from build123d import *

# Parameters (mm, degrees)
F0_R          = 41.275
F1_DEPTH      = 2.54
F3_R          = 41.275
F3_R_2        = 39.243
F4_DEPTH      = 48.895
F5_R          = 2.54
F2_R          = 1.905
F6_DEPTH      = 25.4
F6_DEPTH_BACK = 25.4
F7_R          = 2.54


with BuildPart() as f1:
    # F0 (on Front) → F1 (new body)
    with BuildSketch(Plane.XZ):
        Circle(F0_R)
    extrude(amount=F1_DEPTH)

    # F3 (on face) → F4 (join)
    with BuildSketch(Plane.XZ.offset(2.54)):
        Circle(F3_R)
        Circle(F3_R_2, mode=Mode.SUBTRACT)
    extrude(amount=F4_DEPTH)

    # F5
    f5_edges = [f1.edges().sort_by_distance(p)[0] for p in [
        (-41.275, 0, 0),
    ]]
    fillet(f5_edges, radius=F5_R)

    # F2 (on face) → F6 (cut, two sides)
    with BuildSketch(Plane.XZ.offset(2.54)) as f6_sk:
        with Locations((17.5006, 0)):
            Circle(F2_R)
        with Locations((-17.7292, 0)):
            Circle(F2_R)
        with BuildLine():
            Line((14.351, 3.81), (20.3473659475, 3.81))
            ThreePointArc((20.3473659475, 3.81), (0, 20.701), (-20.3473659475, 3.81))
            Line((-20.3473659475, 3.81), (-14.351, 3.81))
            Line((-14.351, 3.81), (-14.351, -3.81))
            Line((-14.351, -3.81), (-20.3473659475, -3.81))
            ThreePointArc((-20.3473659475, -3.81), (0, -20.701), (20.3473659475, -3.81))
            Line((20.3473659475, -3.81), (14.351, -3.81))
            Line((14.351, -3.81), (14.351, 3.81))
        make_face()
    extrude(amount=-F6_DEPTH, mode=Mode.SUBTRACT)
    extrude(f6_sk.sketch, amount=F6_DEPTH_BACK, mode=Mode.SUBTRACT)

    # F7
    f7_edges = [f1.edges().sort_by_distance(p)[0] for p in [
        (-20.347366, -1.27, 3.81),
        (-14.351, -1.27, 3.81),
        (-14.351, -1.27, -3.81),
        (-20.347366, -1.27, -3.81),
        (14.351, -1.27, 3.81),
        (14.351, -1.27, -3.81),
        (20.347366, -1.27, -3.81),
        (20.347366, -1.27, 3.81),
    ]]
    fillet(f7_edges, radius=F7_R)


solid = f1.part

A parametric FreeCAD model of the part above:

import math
import FreeCAD as App
import Part
import Sketcher

V = App.Vector
Q = App.Units.Quantity


def edges_at(feature, points):
    """Names of the edges that pass closest to the given points."""
    edges = feature.Shape.Edges
    near = lambda p: min(range(len(edges)), key=lambda i: edges[i].distToShape(Part.Vertex(*p))[0])
    return sorted({f"Edge{near(p) + 1}" for p in points})

doc = App.newDocument("Part")
body = doc.addObject("PartDesign::Body", "Body")

# Sketch on XZ plane
sketch1 = body.newObject("Sketcher::SketchObject", "Sketch")
sketch1.AttachmentSupport = (doc.getObject("XZ_Plane"), [""])
sketch1.MapMode = "FlatFace"
sketch1.addGeometry(Part.Circle(V(0, 0, 0), V(0, 0, 1), 41), False)
sketch1.addConstraint(Sketcher.Constraint("Coincident", 0, 3, -1, 1))
sketch1.addConstraint(Sketcher.Constraint("Diameter", 0, Q("3.25 in")))
pad1 = body.newObject("PartDesign::Pad", "Pad")
pad1.Profile = sketch1
pad1.Length = Q("0.1 in")

# Sketch on XZ plane
sketch2 = body.newObject("Sketcher::SketchObject", "Sketch001")
sketch2.AttachmentSupport = (doc.getObject("XZ_Plane"), [""])
sketch2.MapMode = "FlatFace"
sketch2.AttachmentOffset = App.Placement(V(0, 0, 0.1 * 25.4), App.Rotation())
sketch2.addGeometry(Part.Circle(V(0, 0, 0), V(0, 0, 1), 41), False)
sketch2.addGeometry(Part.Circle(V(0, 0, 0), V(0, 0, 1), 39), False)
sketch2.addConstraint(Sketcher.Constraint("Coincident", 0, 3, -1, 1))
sketch2.addConstraint(Sketcher.Constraint("Coincident", 1, 3, -1, 1))
sketch2.addConstraint(Sketcher.Constraint("Diameter", 0, Q("3.25 in")))
sketch2.addConstraint(Sketcher.Constraint("Diameter", 1, Q("3.09 in")))
pad2 = body.newObject("PartDesign::Pad", "Pad001")
pad2.Profile = sketch2
pad2.Length = Q("1.925 in")
doc.recompute()

fillet = body.newObject("PartDesign::Fillet", "Fillet")
fillet.Base = (pad2, edges_at(pad2, [(-41.275, 0, 0)]))
fillet.Radius = Q("0.1 in")

# Sketch on XZ plane
sketch3 = body.newObject("Sketcher::SketchObject", "Sketch002")
sketch3.AttachmentSupport = (doc.getObject("XZ_Plane"), [""])
sketch3.MapMode = "FlatFace"
sketch3.AttachmentOffset = App.Placement(V(0, 0, 0.1 * 25.4), App.Rotation())
sketch3.addGeometry(Part.Circle(V(17.5, 0, 0), V(0, 0, 1), 1.9), False)
sketch3.addGeometry(Part.Circle(V(-17.7, 0, 0), V(0, 0, 1), 1.9), False)
sketch3.addGeometry(Part.LineSegment(V(14.4, 3.8, 0), V(20.3, 3.8, 0)), False)
sketch3.addGeometry(Part.ArcOfCircle(Part.Circle(V(0, 0, 0), V(0, 0, 1), 20.7), math.radians(11), math.radians(169)), False)
sketch3.addGeometry(Part.LineSegment(V(-20.3, 3.8, 0), V(-14.4, 3.8, 0)), False)
sketch3.addGeometry(Part.LineSegment(V(-14.4, 3.8, 0), V(-14.4, -3.8, 0)), False)
sketch3.addGeometry(Part.LineSegment(V(-14.4, -3.8, 0), V(-20.3, -3.8, 0)), False)
sketch3.addGeometry(Part.ArcOfCircle(Part.Circle(V(0, 0, 0), V(0, 0, 1), 20.7), math.radians(-169), math.radians(-11)), False)
sketch3.addGeometry(Part.LineSegment(V(20.3, -3.8, 0), V(14.4, -3.8, 0)), False)
sketch3.addGeometry(Part.LineSegment(V(14.4, -3.8, 0), V(14.4, 3.8, 0)), False)
sketch3.addConstraint(Sketcher.Constraint("Coincident", 2, 2, 3, 1))
sketch3.addConstraint(Sketcher.Constraint("Coincident", 3, 2, 4, 1))
sketch3.addConstraint(Sketcher.Constraint("Coincident", 4, 2, 5, 1))
sketch3.addConstraint(Sketcher.Constraint("Coincident", 5, 2, 6, 1))
sketch3.addConstraint(Sketcher.Constraint("Coincident", 6, 2, 7, 1))
sketch3.addConstraint(Sketcher.Constraint("Coincident", 7, 2, 8, 1))
sketch3.addConstraint(Sketcher.Constraint("Coincident", 8, 2, 9, 1))
sketch3.addConstraint(Sketcher.Constraint("Coincident", 9, 2, 2, 1))
sketch3.addConstraint(Sketcher.Constraint("Horizontal", 2))
sketch3.addConstraint(Sketcher.Constraint("Horizontal", 4))
sketch3.addConstraint(Sketcher.Constraint("Vertical", 5))
sketch3.addConstraint(Sketcher.Constraint("Horizontal", 6))
sketch3.addConstraint(Sketcher.Constraint("Horizontal", 8))
sketch3.addConstraint(Sketcher.Constraint("Vertical", 9))
sketch3.addConstraint(Sketcher.Constraint("Coincident", 3, 3, -1, 1))
sketch3.addConstraint(Sketcher.Constraint("Coincident", 7, 3, -1, 1))
sketch3.addConstraint(Sketcher.Constraint("Equal", 0, 1))
sketch3.addConstraint(Sketcher.Constraint("Equal", 3, 7))
sketch3.addConstraint(Sketcher.Constraint("Symmetric", 4, 2, 8, 2, -1, 1))
sketch3.addConstraint(Sketcher.Constraint("PointOnObject", 0, 3, -1))
sketch3.addConstraint(Sketcher.Constraint("PointOnObject", 1, 3, -1))
sketch3.addConstraint(Sketcher.Constraint("Horizontal", 2, 2, 3, 2))
sketch3.addConstraint(Sketcher.Constraint("Horizontal", 6, 2, 7, 2))
sketch3.addConstraint(Sketcher.Constraint("Diameter", 0, Q("0.15 in")))
sketch3.addConstraint(Sketcher.Constraint("DistanceY", 5, 2, 5, 1, Q("0.3 in")))
sketch3.addConstraint(Sketcher.Constraint("Radius", 3, Q("0.815 in")))
sketch3.addConstraint(Sketcher.Constraint("DistanceX", -1, 1, 0, 3, Q("0.689 in")))
sketch3.addConstraint(Sketcher.Constraint("DistanceX", 1, 3, -1, 1, Q("0.698 in")))
sketch3.addConstraint(Sketcher.Constraint("DistanceX", 4, 2, -1, 1, Q("0.565 in")))
pocket1 = body.newObject("PartDesign::Pocket", "Pocket")
pocket1.Profile = sketch3
pocket1.Type = "ThroughAll"
pocket1.Midplane = True
doc.recompute()

fillet2 = body.newObject("PartDesign::Fillet", "Fillet001")
fillet2.Base = (pocket1, edges_at(pocket1, [
    (-20.347, -1.27, 3.81),
    (-14.351, -1.27, 3.81),
    (-14.351, -1.27, -3.81),
    (-20.347, -1.27, -3.81),
    (14.351, -1.27, 3.81),
    (14.351, -1.27, -3.81),
    (20.347, -1.27, -3.81),
    (20.347, -1.27, 3.81),
]))
fillet2.Radius = Q("0.1 in")

doc.recompute()
